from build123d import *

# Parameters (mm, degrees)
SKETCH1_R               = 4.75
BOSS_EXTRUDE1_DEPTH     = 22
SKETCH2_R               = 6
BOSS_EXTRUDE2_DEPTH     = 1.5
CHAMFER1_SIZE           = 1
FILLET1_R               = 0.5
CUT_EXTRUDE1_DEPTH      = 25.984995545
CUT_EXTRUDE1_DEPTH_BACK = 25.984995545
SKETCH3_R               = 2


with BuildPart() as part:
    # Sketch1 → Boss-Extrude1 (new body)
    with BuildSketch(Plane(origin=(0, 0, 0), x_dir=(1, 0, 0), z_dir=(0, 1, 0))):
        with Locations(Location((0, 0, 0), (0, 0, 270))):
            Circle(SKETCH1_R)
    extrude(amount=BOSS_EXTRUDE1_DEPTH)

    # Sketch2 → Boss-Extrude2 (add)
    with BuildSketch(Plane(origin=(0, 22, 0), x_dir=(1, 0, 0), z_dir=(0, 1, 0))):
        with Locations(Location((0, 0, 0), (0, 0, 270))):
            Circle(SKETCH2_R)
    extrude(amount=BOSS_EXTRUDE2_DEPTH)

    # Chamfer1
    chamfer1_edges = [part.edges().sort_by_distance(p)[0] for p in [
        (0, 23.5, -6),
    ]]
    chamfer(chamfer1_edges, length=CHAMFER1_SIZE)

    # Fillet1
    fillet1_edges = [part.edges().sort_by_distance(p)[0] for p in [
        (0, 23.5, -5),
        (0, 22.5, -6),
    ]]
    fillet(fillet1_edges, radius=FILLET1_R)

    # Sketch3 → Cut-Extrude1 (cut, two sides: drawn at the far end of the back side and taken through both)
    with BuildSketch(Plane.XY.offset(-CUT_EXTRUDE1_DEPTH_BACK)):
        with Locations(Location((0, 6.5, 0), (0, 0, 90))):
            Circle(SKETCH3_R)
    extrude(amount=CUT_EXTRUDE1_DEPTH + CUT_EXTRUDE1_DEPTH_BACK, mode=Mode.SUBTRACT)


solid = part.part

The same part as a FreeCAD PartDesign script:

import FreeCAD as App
import Part
import Sketcher


def edges_at(feature, points):
    """Names of the edges that pass closest to the given points."""
    edges = feature.Shape.Edges
    near = lambda p: min(range(len(edges)), key=lambda i: edges[i].distToShape(Part.Vertex(*p))[0])
    return sorted({f"Edge{near(p) + 1}" for p in points})

doc = App.newDocument("Part")
body = doc.addObject("PartDesign::Body", "Body")

# Sketch on XZ plane
sketch1 = body.newObject("Sketcher::SketchObject", "Sketch")
sketch1.AttachmentSupport = (doc.getObject("XZ_Plane"), [""])
sketch1.MapMode = "FlatFace"
sketch1.addGeometry(Part.Circle(App.Vector(0, 0, 0), App.Vector(0, 0, 1), 4.8), False)
sketch1.addConstraint([
    Sketcher.Constraint("Coincident", 0, 3, -1, 1),
    Sketcher.Constraint("Diameter", 0, 9.5),
])
pad1 = body.newObject("PartDesign::Pad", "Pad")
pad1.Profile = sketch1
pad1.Length = 22
pad1.Reversed = True

# Sketch on XZ plane
sketch2 = body.newObject("Sketcher::SketchObject", "Sketch001")
sketch2.AttachmentSupport = (doc.getObject("XZ_Plane"), [""])
sketch2.MapMode = "FlatFace"
sketch2.AttachmentOffset = App.Placement(App.Vector(0, 0, -22), App.Rotation())
sketch2.addGeometry(Part.Circle(App.Vector(0, 0, 0), App.Vector(0, 0, 1), 6), False)
sketch2.addConstraint([
    Sketcher.Constraint("Coincident", 0, 3, -1, 1),
    Sketcher.Constraint("Diameter", 0, 12.0),
])
pad2 = body.newObject("PartDesign::Pad", "Pad001")
pad2.Profile = sketch2
pad2.Length = 1.5
pad2.Reversed = True
doc.recompute()

chamfer = body.newObject("PartDesign::Chamfer", "Chamfer")
chamfer.Base = (pad2, edges_at(pad2, [(0, 23.5, -6)]))
chamfer.Size = 1
doc.recompute()

fillet = body.newObject("PartDesign::Fillet", "Fillet")
fillet.Base = (chamfer, edges_at(chamfer, [(0, 23.5, -5), (0, 22.5, -6)]))
fillet.Radius = 0.5

# Sketch on XY plane
sketch3 = body.newObject("Sketcher::SketchObject", "Sketch002")
sketch3.AttachmentSupport = (doc.getObject("XY_Plane"), [""])
sketch3.MapMode = "FlatFace"
sketch3.addGeometry(Part.Circle(App.Vector(0, 6.5, 0), App.Vector(0, 0, 1), 2), False)
sketch3.addConstraint([
    Sketcher.Constraint("PointOnObject", 0, 3, -2),
    Sketcher.Constraint("Diameter", 0, 4.0),
    Sketcher.Constraint("DistanceY", -1, 1, 0, 3, 6.5),
])
pocket1 = body.newObject("PartDesign::Pocket", "Pocket")
pocket1.Profile = sketch3
pocket1.Type = "ThroughAll"
pocket1.Midplane = True

doc.recompute()
